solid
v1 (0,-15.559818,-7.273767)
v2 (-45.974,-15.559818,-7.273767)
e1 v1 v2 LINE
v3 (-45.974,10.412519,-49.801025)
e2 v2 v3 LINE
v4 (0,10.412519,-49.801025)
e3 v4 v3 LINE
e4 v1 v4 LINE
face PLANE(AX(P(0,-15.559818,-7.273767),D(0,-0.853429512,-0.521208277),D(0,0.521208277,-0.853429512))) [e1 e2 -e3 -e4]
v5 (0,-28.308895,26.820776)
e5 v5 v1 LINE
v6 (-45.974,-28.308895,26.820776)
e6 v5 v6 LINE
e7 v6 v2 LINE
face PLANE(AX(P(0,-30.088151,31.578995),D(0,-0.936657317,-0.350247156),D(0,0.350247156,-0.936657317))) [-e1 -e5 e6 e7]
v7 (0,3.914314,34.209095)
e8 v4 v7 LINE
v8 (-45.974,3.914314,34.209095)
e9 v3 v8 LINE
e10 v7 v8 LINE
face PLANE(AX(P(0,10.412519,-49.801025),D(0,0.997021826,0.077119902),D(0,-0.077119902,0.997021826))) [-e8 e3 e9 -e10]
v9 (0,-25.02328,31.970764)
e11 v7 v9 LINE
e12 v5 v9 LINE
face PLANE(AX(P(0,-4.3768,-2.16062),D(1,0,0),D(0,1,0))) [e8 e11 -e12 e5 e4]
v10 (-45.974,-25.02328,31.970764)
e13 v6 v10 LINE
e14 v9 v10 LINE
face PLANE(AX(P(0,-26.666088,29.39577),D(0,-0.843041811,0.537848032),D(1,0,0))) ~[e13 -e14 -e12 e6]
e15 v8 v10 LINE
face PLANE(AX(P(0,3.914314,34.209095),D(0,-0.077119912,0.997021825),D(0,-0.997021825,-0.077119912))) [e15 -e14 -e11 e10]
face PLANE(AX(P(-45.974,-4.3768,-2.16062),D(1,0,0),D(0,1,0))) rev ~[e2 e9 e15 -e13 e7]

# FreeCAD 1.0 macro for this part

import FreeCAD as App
import Part
import Sketcher

V = App.Vector
Q = App.Units.Quantity


def edges_at(feature, points):
    """Names of the edges that pass closest to the given points."""
    edges = feature.Shape.Edges
    near = lambda p: min(range(len(edges)), key=lambda i: edges[i].distToShape(Part.Vertex(*p))[0])
    return sorted({f"Edge{near(p) + 1}" for p in points})

doc = App.newDocument("Part")
body = doc.addObject("PartDesign::Body", "Body")

sketch1 = body.newObject("Sketcher::SketchObject", "Sketch")
sketch1.AttachmentSupport = (doc.getObject("YZ_Plane"), [""])
sketch1.MapMode = "FlatFace"
sketch1.addGeometry([
    Part.LineSegment(V(-30.088151, 31.578995, 0), V(-15.559818, -7.273767, 0)),
    Part.LineSegment(V(-15.559818, -7.273767, 0), V(10.412519, -49.801025, 0)),
    Part.LineSegment(V(10.412519, -49.801025, 0), V(3.914314, 34.209095, 0)),
    Part.LineSegment(V(3.914314, 34.209095, 0), V(-30.088151, 31.578995, 0)),
], False)
sketch1.addConstraint([
    Sketcher.Constraint("Coincident", 0, 2, 1, 1),
    Sketcher.Constraint("Coincident", 1, 2, 2, 1),
    Sketcher.Constraint("Coincident", 2, 2, 3, 1),
    Sketcher.Constraint("Coincident", 3, 2, 0, 1),
    Sketcher.Constraint("Perpendicular", 2, 3),
    Sketcher.Constraint("DistanceY", 3, 2, 2, 2, 2.6301),
    Sketcher.Constraint("Distance", 0, 41.480231),
    Sketcher.Constraint("DistanceX", -1, 1, 1, 2, 10.412519),
    Sketcher.Constraint("DistanceX", 3, 2, -1, 1, 30.088151),
    Sketcher.Constraint("DistanceY", 1, 2, 0, 2, 42.527258),
    Sketcher.Constraint("DistanceY", 0, 2, 2, 2, 41.482862),
    Sketcher.Constraint("DistanceY", 0, 2, -1, 1, 7.273767),
])
pad1 = body.newObject("PartDesign::Pad", "Pad")
pad1.Profile = sketch1
pad1.Length = Q("1.81 in")
pad1.Reversed = True
doc.recompute()

chamfer = body.newObject("PartDesign::Chamfer", "Chamfer")
chamfer.Base = (pad1, edges_at(pad1, [(-22.987, -30.088, 31.579)]))
chamfer.Size = Q("0.2 in")

doc.recompute()
